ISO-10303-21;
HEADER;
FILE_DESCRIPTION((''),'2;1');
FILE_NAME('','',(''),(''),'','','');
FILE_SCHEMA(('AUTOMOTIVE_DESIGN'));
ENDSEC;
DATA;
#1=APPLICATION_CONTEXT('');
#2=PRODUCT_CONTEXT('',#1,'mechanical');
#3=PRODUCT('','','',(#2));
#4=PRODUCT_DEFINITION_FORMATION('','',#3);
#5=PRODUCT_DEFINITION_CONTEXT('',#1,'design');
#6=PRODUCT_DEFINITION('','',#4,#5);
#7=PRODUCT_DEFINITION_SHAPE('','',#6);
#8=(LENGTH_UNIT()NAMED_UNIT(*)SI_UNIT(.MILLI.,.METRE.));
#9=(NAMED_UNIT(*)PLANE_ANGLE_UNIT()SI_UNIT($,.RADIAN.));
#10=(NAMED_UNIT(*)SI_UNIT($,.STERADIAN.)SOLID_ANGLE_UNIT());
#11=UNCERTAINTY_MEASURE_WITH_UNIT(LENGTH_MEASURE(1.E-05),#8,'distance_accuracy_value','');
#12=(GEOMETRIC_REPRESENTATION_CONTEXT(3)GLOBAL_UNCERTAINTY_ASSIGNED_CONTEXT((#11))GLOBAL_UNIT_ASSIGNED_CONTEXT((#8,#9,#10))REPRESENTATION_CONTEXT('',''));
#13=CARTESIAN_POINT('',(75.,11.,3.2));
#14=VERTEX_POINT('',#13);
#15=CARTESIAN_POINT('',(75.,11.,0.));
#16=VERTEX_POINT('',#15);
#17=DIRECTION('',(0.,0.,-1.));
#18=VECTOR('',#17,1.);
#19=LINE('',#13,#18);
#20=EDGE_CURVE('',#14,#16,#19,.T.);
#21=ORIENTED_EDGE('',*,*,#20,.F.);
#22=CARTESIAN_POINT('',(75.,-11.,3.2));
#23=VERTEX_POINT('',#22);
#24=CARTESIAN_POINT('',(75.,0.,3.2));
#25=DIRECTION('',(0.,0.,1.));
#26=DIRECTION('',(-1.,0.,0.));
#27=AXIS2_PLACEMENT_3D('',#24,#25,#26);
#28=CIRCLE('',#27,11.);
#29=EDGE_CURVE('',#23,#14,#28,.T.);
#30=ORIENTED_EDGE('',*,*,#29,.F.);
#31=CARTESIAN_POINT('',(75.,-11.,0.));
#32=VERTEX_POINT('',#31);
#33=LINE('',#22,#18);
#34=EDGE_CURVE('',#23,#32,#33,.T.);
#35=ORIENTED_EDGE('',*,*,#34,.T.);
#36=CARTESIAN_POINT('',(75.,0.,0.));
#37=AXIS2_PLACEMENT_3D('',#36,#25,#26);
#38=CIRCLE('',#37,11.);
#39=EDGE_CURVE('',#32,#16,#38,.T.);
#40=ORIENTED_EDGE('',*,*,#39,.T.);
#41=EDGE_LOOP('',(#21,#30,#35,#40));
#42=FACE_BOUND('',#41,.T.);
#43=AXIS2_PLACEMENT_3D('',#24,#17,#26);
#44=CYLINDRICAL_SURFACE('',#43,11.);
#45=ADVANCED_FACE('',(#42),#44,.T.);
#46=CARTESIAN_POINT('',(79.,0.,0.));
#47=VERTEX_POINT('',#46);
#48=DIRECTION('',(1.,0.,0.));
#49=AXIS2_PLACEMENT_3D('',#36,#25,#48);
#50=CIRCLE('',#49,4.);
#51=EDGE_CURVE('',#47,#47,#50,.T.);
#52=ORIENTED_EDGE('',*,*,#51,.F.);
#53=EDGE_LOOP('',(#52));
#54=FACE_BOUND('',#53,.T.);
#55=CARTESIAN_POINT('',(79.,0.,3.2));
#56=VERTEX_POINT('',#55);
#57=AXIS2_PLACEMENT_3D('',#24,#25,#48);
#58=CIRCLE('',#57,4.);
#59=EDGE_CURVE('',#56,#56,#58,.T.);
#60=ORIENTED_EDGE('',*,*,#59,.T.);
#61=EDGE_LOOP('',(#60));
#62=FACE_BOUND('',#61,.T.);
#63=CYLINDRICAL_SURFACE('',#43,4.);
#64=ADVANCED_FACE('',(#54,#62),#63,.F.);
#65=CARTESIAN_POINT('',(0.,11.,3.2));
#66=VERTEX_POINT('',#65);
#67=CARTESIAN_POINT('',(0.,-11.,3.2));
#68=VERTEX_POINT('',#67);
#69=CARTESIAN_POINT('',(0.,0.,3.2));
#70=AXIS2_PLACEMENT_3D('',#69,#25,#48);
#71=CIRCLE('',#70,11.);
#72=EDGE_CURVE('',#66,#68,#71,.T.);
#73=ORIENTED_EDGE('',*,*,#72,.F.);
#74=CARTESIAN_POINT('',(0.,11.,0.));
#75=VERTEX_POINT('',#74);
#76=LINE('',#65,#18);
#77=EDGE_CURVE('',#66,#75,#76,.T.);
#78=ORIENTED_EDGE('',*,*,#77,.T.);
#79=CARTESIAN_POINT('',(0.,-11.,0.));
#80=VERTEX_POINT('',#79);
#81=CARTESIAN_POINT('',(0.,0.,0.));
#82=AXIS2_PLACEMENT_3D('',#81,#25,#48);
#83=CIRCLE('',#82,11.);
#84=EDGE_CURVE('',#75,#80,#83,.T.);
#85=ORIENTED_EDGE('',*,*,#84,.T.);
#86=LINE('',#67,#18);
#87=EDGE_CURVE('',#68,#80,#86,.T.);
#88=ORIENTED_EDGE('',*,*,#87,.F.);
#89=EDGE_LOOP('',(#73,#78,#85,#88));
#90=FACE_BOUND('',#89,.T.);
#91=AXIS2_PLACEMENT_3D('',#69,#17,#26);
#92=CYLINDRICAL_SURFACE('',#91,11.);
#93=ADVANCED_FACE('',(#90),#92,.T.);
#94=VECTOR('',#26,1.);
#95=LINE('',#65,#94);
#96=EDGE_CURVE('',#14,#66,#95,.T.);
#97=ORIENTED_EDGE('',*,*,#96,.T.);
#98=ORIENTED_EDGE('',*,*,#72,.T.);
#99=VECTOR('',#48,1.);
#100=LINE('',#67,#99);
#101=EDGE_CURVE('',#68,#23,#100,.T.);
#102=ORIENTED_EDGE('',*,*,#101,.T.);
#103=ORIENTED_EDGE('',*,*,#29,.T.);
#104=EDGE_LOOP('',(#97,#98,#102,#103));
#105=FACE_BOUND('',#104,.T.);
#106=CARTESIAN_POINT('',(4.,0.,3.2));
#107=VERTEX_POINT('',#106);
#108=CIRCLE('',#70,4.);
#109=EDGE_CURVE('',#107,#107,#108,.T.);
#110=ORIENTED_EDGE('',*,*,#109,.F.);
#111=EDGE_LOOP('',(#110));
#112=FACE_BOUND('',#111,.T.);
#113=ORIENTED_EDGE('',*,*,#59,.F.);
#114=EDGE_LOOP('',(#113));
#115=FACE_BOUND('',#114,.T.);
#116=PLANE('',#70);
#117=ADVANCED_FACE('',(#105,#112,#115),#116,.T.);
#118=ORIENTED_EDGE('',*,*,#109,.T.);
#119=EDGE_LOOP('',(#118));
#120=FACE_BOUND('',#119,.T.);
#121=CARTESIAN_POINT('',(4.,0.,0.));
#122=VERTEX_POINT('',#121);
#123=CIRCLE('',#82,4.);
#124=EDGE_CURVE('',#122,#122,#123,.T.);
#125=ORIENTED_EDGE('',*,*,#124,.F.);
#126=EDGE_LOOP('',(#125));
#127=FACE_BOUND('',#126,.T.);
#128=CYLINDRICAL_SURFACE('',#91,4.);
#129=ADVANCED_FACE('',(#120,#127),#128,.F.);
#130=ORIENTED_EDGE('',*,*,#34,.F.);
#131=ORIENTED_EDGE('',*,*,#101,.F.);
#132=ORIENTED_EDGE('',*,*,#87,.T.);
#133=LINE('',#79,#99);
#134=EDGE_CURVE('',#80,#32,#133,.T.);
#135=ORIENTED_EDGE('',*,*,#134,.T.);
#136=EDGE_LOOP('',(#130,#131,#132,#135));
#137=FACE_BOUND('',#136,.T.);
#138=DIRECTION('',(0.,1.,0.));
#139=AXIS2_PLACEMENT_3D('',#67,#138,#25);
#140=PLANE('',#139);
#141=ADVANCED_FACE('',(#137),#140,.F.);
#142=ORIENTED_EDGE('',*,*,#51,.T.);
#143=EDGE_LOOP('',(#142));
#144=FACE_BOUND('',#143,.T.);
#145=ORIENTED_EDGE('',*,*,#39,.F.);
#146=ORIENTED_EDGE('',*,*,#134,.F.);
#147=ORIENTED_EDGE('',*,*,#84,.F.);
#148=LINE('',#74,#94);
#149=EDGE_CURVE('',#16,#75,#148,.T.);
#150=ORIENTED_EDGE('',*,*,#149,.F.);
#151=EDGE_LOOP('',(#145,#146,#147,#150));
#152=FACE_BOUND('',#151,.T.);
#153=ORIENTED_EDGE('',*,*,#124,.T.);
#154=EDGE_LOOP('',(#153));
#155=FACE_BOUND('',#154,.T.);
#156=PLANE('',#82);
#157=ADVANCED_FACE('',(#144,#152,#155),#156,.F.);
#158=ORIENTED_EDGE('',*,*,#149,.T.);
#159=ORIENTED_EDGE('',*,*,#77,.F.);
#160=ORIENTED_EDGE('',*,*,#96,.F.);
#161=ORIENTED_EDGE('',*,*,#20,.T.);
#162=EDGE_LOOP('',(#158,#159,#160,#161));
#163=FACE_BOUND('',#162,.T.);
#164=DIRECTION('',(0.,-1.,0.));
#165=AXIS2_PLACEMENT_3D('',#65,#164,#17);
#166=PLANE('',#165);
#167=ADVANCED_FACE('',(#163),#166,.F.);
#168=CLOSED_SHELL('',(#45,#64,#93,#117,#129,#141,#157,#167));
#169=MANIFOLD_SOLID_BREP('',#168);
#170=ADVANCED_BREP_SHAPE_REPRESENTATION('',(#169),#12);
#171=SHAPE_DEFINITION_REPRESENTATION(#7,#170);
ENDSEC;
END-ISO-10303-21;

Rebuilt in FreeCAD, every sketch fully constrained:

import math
import FreeCAD as App
import Part
import Sketcher

V = App.Vector

doc = App.newDocument("Part")
body = doc.addObject("PartDesign::Body", "Body")

# Sketch on XY plane
sketch1 = doc.addObject("Sketcher::SketchObject", "Sketch")
body.addObject(sketch1)
sketch1.AttachmentSupport = (doc.XY_Plane, [""])
sketch1.MapMode = "FlatFace"
sketch1.addGeometry([
    Part.LineSegment(V(75, 11, 0), V(0, 11, 0)),  # 0
    Part.ArcOfCircle(Part.Circle(V(0, 0, 0), V(0, 0, 1), 11), math.radians(90), math.radians(270)),  # 1
    Part.LineSegment(V(0, -11, 0), V(75, -11, 0)),  # 2
    Part.ArcOfCircle(Part.Circle(V(75, 0, 0), V(0, 0, 1), 11), math.radians(-90), math.radians(90)),  # 3
    Part.Circle(V(75, 0, 0), V(0, 0, 1), 4),  # 4
    Part.Circle(V(0, 0, 0), V(0, 0, 1), 4),  # 5
], False)
sketch1.addConstraint([
    Sketcher.Constraint("Tangent", 0, 2, 1, 1),
    Sketcher.Constraint("Tangent", 1, 2, 2, 1),
    Sketcher.Constraint("Tangent", 2, 2, 3, 1),
    Sketcher.Constraint("Tangent", 3, 2, 0, 1),
    Sketcher.Constraint("Horizontal", 0),
    Sketcher.Constraint("Horizontal", 2),
    Sketcher.Constraint("Coincident", 1, 3, -1, 1),
    Sketcher.Constraint("Coincident", 5, 3, -1, 1),
    Sketcher.Constraint("Coincident", 4, 3, 3, 3),
    Sketcher.Constraint("Equal", 4, 5),
    Sketcher.Constraint("Diameter", 4, 8.0),
    Sketcher.Constraint("Radius", 1, 11.0),
    Sketcher.Constraint("DistanceX", 0, 2, 0, 1, 75.0),
])
pad1 = doc.addObject("PartDesign::Pad", "Pad")
body.addObject(pad1)
pad1.Profile = sketch1
pad1.Length = 3.2

doc.recompute()
